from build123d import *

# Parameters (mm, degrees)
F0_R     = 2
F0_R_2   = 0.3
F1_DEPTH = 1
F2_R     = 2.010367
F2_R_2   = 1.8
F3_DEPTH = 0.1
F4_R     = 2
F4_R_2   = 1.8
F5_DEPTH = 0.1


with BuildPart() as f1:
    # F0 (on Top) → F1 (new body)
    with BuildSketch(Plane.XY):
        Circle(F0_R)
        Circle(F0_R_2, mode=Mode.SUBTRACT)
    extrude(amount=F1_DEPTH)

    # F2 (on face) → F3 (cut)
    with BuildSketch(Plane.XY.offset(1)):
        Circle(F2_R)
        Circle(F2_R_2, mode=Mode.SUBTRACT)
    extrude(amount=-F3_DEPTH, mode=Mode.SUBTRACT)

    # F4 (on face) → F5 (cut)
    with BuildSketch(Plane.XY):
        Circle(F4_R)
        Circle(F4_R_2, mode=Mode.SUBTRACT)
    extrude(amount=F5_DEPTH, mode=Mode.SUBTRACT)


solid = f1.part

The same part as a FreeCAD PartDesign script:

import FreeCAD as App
import Part
import Sketcher

V = App.Vector
Q = App.Units.Quantity

doc = App.newDocument("Part")
body = doc.addObject("PartDesign::Body", "Body")

# Sketch on XY plane
sketch1 = body.newObject("Sketcher::SketchObject", "Sketch")
sketch1.AttachmentSupport = (doc.getObject("XY_Plane"), [""])
sketch1.MapMode = "FlatFace"
sketch1.addGeometry(Part.Circle(V(0, 0, 0), V(0, 0, 1), 2), False)
sketch1.addGeometry(Part.Circle(V(0, 0, 0), V(0, 0, 1), 0.3), False)
sketch1.addConstraint(Sketcher.Constraint("Coincident", 0, 3, -1, 1))
sketch1.addConstraint(Sketcher.Constraint("Coincident", 1, 3, -1, 1))
sketch1.addConstraint(Sketcher.Constraint("Diameter", 0, Q("4 mm")))
sketch1.addConstraint(Sketcher.Constraint("Diameter", 1, Q("0.6 mm")))
pad1 = body.newObject("PartDesign::Pad", "Pad")
pad1.Profile = sketch1
pad1.Length = 1

# Sketch on XY plane
sketch2 = body.newObject("Sketcher::SketchObject", "Sketch001")
sketch2.AttachmentSupport = (doc.getObject("XY_Plane"), [""])
sketch2.MapMode = "FlatFace"
sketch2.AttachmentOffset = App.Placement(V(0, 0, 1), App.Rotation())
sketch2.addGeometry(Part.Circle(V(0, 0, 0), V(0, 0, 1), 2), False)
sketch2.addGeometry(Part.Circle(V(0, 0, 0), V(0, 0, 1), 1.8), False)
sketch2.addConstraint(Sketcher.Constraint("Coincident", 0, 3, -1, 1))
sketch2.addConstraint(Sketcher.Constraint("Coincident", 1, 3, -1, 1))
sketch2.addConstraint(Sketcher.Constraint("Diameter", 1, Q("3.6 mm")))
sketch2.addConstraint(Sketcher.Constraint("Diameter", 0, Q("4.020734 mm")))
pocket1 = body.newObject("PartDesign::Pocket", "Pocket")
pocket1.Profile = sketch2
pocket1.Length = 0.1

# Sketch on XY plane
sketch3 = body.newObject("Sketcher::SketchObject", "Sketch002")
sketch3.AttachmentSupport = (doc.getObject("XY_Plane"), [""])
sketch3.MapMode = "FlatFace"
sketch3.addGeometry(Part.Circle(V(0, 0, 0), V(0, 0, 1), 2), False)
sketch3.addGeometry(Part.Circle(V(0, 0, 0), V(0, 0, 1), 1.8), False)
sketch3.addConstraint(Sketcher.Constraint("Coincident", 0, 3, -1, 1))
sketch3.addConstraint(Sketcher.Constraint("Coincident", 1, 3, -1, 1))
sketch3.addConstraint(Sketcher.Constraint("Diameter", 0, Q("4 mm")))
sketch3.addConstraint(Sketcher.Constraint("Diameter", 1, Q("3.6 mm")))
pocket2 = body.newObject("PartDesign::Pocket", "Pocket001")
pocket2.Profile = sketch3
pocket2.Length = 0.1
pocket2.Reversed = True

doc.recompute()
